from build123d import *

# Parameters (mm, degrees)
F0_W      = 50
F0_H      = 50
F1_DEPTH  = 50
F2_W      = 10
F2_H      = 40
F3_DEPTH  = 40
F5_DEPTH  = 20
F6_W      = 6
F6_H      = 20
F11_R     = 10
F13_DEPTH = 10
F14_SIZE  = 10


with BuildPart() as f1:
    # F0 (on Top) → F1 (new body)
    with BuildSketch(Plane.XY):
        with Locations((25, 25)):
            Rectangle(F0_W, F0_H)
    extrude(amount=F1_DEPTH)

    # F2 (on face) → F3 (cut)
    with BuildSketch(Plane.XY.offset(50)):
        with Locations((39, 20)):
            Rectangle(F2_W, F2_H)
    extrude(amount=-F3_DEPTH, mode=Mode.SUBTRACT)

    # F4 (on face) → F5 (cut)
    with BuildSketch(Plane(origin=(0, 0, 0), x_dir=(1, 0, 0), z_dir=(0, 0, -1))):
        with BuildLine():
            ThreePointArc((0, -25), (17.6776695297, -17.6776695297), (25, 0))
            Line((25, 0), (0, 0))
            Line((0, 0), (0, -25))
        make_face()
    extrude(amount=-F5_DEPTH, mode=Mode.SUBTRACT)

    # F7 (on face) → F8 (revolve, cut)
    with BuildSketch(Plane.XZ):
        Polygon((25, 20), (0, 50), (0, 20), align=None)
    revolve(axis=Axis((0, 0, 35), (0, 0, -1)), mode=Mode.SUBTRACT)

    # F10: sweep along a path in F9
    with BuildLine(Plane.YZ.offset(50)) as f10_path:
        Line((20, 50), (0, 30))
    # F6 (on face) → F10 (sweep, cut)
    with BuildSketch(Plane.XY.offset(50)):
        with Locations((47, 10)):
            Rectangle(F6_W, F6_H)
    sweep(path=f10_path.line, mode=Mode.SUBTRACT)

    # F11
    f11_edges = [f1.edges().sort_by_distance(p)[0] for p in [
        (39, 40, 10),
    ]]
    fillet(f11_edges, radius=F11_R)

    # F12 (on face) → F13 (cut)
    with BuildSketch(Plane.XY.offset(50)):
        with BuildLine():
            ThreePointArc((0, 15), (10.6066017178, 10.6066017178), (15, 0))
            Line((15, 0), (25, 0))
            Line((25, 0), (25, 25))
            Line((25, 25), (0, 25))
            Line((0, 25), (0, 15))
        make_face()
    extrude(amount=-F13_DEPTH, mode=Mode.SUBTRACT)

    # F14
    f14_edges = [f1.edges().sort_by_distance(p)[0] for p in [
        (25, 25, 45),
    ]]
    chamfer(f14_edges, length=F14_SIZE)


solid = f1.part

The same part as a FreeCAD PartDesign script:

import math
import FreeCAD as App
import Part
import Sketcher

V = App.Vector


def edges_at(feature, points):
    """Names of the edges that pass closest to the given points."""
    edges = feature.Shape.Edges
    near = lambda p: min(range(len(edges)), key=lambda i: edges[i].distToShape(Part.Vertex(*p))[0])
    return sorted({f"Edge{near(p) + 1}" for p in points})


def add_polygon(sketch, points):
    """Adds a closed chain of lines whose ends are joined by coincident constraints."""
    first, n = sketch.GeometryCount, len(points)
    for a, b in zip(points, points[1:] + points[:1]):
        sketch.addGeometry(Part.LineSegment(App.Vector(*a, 0), App.Vector(*b, 0)), False)
    for i in range(n):
        sketch.addConstraint(Sketcher.Constraint("Coincident", first + i, 2, first + (i + 1) % n, 1))

doc = App.newDocument("Part")
body = doc.addObject("PartDesign::Body", "Body")

sketch1 = body.newObject("Sketcher::SketchObject", "Sketch")
sketch1.AttachmentSupport = (doc.getObject("XY_Plane"), [""])
sketch1.MapMode = "FlatFace"
add_polygon(sketch1, [(0, 50), (0, 0), (50, 0), (50, 50)])
sketch1.addConstraint(Sketcher.Constraint("Vertical", 0))
sketch1.addConstraint(Sketcher.Constraint("Horizontal", 1))
sketch1.addConstraint(Sketcher.Constraint("Vertical", 2))
sketch1.addConstraint(Sketcher.Constraint("Horizontal", 3))
sketch1.addConstraint(Sketcher.Constraint("Coincident", 0, 2, -1, 1))
sketch1.addConstraint(Sketcher.Constraint("Equal", 3, 0))
sketch1.addConstraint(Sketcher.Constraint("DistanceX", 1, 1, 1, 2, 50.0))
pad1 = body.newObject("PartDesign::Pad", "Pad")
pad1.Profile = sketch1
pad1.Length = 50

sketch2 = body.newObject("Sketcher::SketchObject", "Sketch001")
sketch2.AttachmentSupport = (doc.getObject("XY_Plane"), [""])
sketch2.MapMode = "FlatFace"
sketch2.AttachmentOffset = App.Placement(V(0, 0, 50), App.Rotation())
add_polygon(sketch2, [(34, 40), (34, 0), (44, 0), (44, 40)])
sketch2.addConstraint(Sketcher.Constraint("Vertical", 0))
sketch2.addConstraint(Sketcher.Constraint("Horizontal", 1))
sketch2.addConstraint(Sketcher.Constraint("Vertical", 2))
sketch2.addConstraint(Sketcher.Constraint("Horizontal", 3))
sketch2.addConstraint(Sketcher.Constraint("PointOnObject", 0, 2, -1))
sketch2.addConstraint(Sketcher.Constraint("DistanceX", 1, 1, 1, 2, 10.0))
sketch2.addConstraint(Sketcher.Constraint("DistanceY", 0, 2, 0, 1, 40.0))
sketch2.addConstraint(Sketcher.Constraint("DistanceX", -1, 1, 0, 2, 34.0))
pocket1 = body.newObject("PartDesign::Pocket", "Pocket")
pocket1.Profile = sketch2
pocket1.Length = 40

sketch3 = body.newObject("Sketcher::SketchObject", "Sketch002")
sketch3.AttachmentSupport = (doc.getObject("XY_Plane"), [""])
sketch3.MapMode = "FlatFace"
sketch3.addGeometry(Part.ArcOfCircle(Part.Circle(V(0, 0, 0), V(0, 0, 1), 25), math.radians(0), math.radians(90)), False)
sketch3.addGeometry(Part.LineSegment(V(25, 0, 0), V(0, 0, 0)), False)
sketch3.addGeometry(Part.LineSegment(V(0, 0, 0), V(0, 25, 0)), False)
sketch3.addConstraint(Sketcher.Constraint("Coincident", 0, 1, 1, 1))
sketch3.addConstraint(Sketcher.Constraint("Coincident", 1, 2, 2, 1))
sketch3.addConstraint(Sketcher.Constraint("Coincident", 2, 2, 0, 2))
sketch3.addConstraint(Sketcher.Constraint("Horizontal", 1))
sketch3.addConstraint(Sketcher.Constraint("Vertical", 2))
sketch3.addConstraint(Sketcher.Constraint("Coincident", 0, 3, -1, 1))
sketch3.addConstraint(Sketcher.Constraint("Coincident", 1, 2, -1, 1))
sketch3.addConstraint(Sketcher.Constraint("Radius", 0, 25.0))
pocket2 = body.newObject("PartDesign::Pocket", "Pocket001")
pocket2.Profile = sketch3
pocket2.Length = 20
pocket2.Reversed = True

sketch4 = body.newObject("Sketcher::SketchObject", "Sketch003")
sketch4.AttachmentSupport = (doc.getObject("XZ_Plane"), [""])
sketch4.MapMode = "FlatFace"
add_polygon(sketch4, [(25, 20), (0, 50), (0, 20)])
sketch4.addConstraint(Sketcher.Constraint("Vertical", 1))
sketch4.addConstraint(Sketcher.Constraint("Horizontal", 2))
sketch4.addConstraint(Sketcher.Constraint("PointOnObject", 0, 2, -2))
sketch4.addConstraint(Sketcher.Constraint("DistanceX", 2, 1, 2, 2, 25.0))
sketch4.addConstraint(Sketcher.Constraint("DistanceY", 1, 2, 1, 1, 30.0))
sketch4.addConstraint(Sketcher.Constraint("DistanceY", -1, 1, 0, 2, 50.0))
groove = body.newObject("PartDesign::Groove", "Groove")
groove.Profile = sketch4
groove.ReferenceAxis = (sketch4, ["V_Axis"])
groove.Angle = 360

sketch5 = body.newObject("Sketcher::SketchObject", "Sketch004")
sketch5.AttachmentSupport = (doc.getObject("XY_Plane"), [""])
sketch5.MapMode = "FlatFace"
sketch5.AttachmentOffset = App.Placement(V(0, 0, 50), App.Rotation())
add_polygon(sketch5, [(44, 20), (44, 0), (50, 0), (50, 20)])
sketch5.addConstraint(Sketcher.Constraint("Vertical", 0))
sketch5.addConstraint(Sketcher.Constraint("Horizontal", 1))
sketch5.addConstraint(Sketcher.Constraint("Vertical", 2))
sketch5.addConstraint(Sketcher.Constraint("Horizontal", 3))
sketch5.addConstraint(Sketcher.Constraint("PointOnObject", 0, 2, -1))
sketch5.addConstraint(Sketcher.Constraint("DistanceX", 1, 1, 1, 2, 6.0))
sketch5.addConstraint(Sketcher.Constraint("DistanceY", 0, 2, 0, 1, 20.0))
sketch5.addConstraint(Sketcher.Constraint("DistanceX", -1, 1, 0, 2, 44.0))

sketch6 = body.newObject("Sketcher::SketchObject", "Sketch005")
sketch6.Placement = App.Placement(V(0, -15, 15), App.Rotation(V(0, 0.707106781, 0.707106781), V(0.999999999, 0, 0), V(0, 0.707106781, -0.707106781), "ZXY"))
sketch6.addGeometry(Part.LineSegment(V(49, 50, 0), V(21, 50, 0)), False)
sketch6.addConstraint(Sketcher.Constraint("Horizontal", 0))
sketch6.addConstraint(Sketcher.Constraint("DistanceY", -1, 1, 0, 1, 50.0))
sketch6.addConstraint(Sketcher.Constraint("DistanceX", 0, 2, 0, 1, 28.284271))
sketch6.addConstraint(Sketcher.Constraint("DistanceX", -1, 1, 0, 1, 49.497475))
doc.recompute()

subtractivepipe = body.newObject("PartDesign::SubtractivePipe", "SubtractivePipe")
subtractivepipe.Profile = sketch5
subtractivepipe.Spine = (sketch6, ["Edge1"])
doc.recompute()

fillet = body.newObject("PartDesign::Fillet", "Fillet")
fillet.Base = (subtractivepipe, edges_at(subtractivepipe, [(39, 40, 10)]))
fillet.Radius = 10

sketch7 = body.newObject("Sketcher::SketchObject", "Sketch006")
sketch7.AttachmentSupport = (doc.getObject("XY_Plane"), [""])
sketch7.MapMode = "FlatFace"
sketch7.AttachmentOffset = App.Placement(V(0, 0, 50), App.Rotation())
sketch7.addGeometry(Part.ArcOfCircle(Part.Circle(V(0, 0, 0), V(0, 0, 1), 15), math.radians(0), math.radians(90)), False)
sketch7.addGeometry(Part.LineSegment(V(15, 0, 0), V(25, 0, 0)), False)
sketch7.addGeometry(Part.LineSegment(V(25, 0, 0), V(25, 25, 0)), False)
sketch7.addGeometry(Part.LineSegment(V(25, 25, 0), V(0, 25, 0)), False)
sketch7.addGeometry(Part.LineSegment(V(0, 25, 0), V(0, 15, 0)), False)
sketch7.addConstraint(Sketcher.Constraint("Coincident", 0, 1, 1, 1))
sketch7.addConstraint(Sketcher.Constraint("Coincident", 1, 2, 2, 1))
sketch7.addConstraint(Sketcher.Constraint("Coincident", 2, 2, 3, 1))
sketch7.addConstraint(Sketcher.Constraint("Coincident", 3, 2, 4, 1))
sketch7.addConstraint(Sketcher.Constraint("Coincident", 4, 2, 0, 2))
sketch7.addConstraint(Sketcher.Constraint("Horizontal", 1))
sketch7.addConstraint(Sketcher.Constraint("Vertical", 2))
sketch7.addConstraint(Sketcher.Constraint("Horizontal", 3))
sketch7.addConstraint(Sketcher.Constraint("Vertical", 4))
sketch7.addConstraint(Sketcher.Constraint("Coincident", 0, 3, -1, 1))
sketch7.addConstraint(Sketcher.Constraint("PointOnObject", 0, 1, -1))
sketch7.addConstraint(Sketcher.Constraint("PointOnObject", 3, 2, -2))
sketch7.addConstraint(Sketcher.Constraint("Equal", 3, 2))
sketch7.addConstraint(Sketcher.Constraint("Radius", 0, 15.0))
sketch7.addConstraint(Sketcher.Constraint("DistanceX", 1, 1, 1, 2, 10.0))
pocket3 = body.newObject("PartDesign::Pocket", "Pocket002")
pocket3.Profile = sketch7
pocket3.Length = 10
doc.recompute()

chamfer = body.newObject("PartDesign::Chamfer", "Chamfer")
chamfer.Base = (pocket3, edges_at(pocket3, [(25, 25, 45)]))
chamfer.Size = 10

doc.recompute()
